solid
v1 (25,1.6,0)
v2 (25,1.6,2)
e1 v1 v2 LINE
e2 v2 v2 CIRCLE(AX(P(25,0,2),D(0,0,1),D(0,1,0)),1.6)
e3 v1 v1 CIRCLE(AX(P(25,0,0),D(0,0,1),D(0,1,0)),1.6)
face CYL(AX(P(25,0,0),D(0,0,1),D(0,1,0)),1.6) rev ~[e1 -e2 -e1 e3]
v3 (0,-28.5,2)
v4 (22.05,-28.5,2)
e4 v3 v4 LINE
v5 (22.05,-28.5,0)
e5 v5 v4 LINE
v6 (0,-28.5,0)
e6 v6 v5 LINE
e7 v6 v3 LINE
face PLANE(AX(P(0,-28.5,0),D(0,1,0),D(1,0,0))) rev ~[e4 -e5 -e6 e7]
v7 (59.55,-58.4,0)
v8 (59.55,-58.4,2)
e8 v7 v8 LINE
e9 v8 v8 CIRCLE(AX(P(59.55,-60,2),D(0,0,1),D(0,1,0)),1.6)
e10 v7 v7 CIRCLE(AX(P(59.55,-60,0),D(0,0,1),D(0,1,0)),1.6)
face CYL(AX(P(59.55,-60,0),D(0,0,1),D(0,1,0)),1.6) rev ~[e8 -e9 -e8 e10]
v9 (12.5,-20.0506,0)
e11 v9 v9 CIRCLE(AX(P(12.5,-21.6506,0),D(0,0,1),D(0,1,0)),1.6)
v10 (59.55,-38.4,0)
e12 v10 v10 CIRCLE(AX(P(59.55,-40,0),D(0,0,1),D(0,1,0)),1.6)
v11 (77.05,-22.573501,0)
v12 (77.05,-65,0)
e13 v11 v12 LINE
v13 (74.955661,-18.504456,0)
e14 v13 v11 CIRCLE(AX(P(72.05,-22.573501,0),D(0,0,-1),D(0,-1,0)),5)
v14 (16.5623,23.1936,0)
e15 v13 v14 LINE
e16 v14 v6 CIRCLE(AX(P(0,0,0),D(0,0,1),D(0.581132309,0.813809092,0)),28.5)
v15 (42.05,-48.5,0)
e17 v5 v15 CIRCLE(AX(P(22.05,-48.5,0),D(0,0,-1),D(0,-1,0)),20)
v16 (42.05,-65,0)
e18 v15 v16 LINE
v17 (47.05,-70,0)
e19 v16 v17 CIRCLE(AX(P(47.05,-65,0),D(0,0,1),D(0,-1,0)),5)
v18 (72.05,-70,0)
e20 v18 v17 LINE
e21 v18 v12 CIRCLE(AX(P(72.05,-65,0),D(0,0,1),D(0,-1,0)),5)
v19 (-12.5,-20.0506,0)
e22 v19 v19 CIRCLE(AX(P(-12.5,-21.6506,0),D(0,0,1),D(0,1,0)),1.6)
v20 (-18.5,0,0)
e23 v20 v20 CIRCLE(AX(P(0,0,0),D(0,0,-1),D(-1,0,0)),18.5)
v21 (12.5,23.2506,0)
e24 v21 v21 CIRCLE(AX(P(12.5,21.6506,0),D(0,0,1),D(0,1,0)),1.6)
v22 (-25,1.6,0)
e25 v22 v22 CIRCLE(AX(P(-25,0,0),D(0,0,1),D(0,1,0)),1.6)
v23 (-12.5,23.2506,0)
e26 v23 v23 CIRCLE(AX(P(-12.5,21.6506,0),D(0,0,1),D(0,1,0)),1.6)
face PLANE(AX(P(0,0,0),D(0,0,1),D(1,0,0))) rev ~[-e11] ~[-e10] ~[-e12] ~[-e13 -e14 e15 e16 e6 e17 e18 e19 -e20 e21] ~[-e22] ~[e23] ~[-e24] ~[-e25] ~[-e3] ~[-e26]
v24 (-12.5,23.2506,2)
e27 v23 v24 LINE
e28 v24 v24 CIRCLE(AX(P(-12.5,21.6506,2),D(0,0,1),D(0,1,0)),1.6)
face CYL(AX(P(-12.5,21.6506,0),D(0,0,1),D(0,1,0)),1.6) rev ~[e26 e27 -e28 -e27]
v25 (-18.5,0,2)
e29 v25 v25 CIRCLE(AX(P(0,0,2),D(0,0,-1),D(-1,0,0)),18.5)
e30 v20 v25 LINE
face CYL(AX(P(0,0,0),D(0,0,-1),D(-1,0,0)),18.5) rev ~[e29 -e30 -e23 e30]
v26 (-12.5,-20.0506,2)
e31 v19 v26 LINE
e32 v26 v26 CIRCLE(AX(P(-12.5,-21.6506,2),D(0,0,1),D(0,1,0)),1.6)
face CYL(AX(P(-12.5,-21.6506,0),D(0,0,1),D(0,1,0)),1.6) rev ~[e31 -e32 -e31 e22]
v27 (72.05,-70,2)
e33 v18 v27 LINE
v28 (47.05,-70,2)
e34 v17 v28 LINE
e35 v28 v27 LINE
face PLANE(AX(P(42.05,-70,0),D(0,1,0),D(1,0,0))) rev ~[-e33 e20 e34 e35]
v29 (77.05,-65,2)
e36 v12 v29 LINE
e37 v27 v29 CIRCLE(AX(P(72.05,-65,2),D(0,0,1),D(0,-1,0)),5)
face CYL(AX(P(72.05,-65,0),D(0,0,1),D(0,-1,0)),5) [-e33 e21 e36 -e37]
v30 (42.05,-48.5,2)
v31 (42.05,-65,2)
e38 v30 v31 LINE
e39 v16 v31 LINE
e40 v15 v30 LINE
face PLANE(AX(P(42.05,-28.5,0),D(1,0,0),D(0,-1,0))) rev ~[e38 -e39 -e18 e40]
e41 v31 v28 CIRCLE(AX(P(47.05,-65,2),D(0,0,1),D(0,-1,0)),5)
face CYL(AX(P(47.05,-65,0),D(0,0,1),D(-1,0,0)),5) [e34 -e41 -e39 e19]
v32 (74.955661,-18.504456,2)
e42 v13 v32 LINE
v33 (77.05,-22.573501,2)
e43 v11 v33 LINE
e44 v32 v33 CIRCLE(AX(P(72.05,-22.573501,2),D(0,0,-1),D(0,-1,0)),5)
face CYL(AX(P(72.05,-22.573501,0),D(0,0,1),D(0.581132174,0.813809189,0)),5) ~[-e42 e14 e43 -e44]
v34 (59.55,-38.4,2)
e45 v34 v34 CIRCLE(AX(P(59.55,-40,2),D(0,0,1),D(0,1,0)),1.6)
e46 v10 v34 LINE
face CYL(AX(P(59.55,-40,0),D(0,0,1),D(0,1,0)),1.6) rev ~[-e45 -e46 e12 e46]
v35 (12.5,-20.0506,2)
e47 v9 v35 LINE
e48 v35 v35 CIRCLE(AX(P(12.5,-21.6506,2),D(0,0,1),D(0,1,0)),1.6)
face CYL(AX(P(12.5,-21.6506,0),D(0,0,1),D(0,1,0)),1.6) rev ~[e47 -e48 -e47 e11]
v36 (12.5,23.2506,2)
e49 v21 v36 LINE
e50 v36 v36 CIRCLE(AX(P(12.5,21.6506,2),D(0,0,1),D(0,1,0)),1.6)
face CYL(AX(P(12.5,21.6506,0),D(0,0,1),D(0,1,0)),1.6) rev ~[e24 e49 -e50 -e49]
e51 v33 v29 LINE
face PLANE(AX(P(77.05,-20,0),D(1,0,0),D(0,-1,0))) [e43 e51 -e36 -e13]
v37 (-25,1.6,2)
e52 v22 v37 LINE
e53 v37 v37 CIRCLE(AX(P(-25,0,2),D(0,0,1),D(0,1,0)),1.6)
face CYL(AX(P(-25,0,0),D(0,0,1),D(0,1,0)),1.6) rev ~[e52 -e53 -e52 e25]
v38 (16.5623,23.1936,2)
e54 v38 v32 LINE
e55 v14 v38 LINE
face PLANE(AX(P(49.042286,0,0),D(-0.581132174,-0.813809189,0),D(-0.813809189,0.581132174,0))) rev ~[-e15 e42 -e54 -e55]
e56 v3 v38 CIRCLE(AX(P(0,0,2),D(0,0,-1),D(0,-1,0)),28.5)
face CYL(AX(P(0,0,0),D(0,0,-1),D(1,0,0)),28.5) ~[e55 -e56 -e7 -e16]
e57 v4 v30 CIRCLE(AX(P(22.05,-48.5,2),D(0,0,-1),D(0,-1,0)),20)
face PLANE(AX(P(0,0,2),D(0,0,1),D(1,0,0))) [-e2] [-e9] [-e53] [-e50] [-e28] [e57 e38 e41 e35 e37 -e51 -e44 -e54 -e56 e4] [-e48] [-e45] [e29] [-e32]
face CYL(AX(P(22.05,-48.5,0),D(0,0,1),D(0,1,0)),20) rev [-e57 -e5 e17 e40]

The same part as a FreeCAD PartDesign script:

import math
import FreeCAD as App
import Part
import Sketcher
Q = App.Units.Quantity


def edges_at(feature, points):
    """Names of the edges that pass closest to the given points."""
    edges = feature.Shape.Edges
    near = lambda p: min(range(len(edges)), key=lambda i: edges[i].distToShape(Part.Vertex(*p))[0])
    return sorted({f"Edge{near(p) + 1}" for p in points})

doc = App.newDocument("Part")
body = doc.addObject("PartDesign::Body", "Body")

sketch1 = body.newObject("Sketcher::SketchObject", "Sketch")
sketch1.AttachmentSupport = (doc.getObject("XY_Plane"), [""])
sketch1.MapMode = "FlatFace"
sketch1.addGeometry([
    Part.ArcOfCircle(Part.Circle(App.Vector(0, 0, 0), App.Vector(0, 0, 1), 28.5), math.radians(54.469777), math.radians(231.420787)),
    Part.LineSegment(App.Vector(-17.7725, -22.2798, 0), App.Vector(42.05, -70, 0)),
    Part.LineSegment(App.Vector(42.05, -70, 0), App.Vector(77.05, -70, 0)),
    Part.LineSegment(App.Vector(77.05, -70, 0), App.Vector(77.05, -20, 0)),
    Part.LineSegment(App.Vector(77.05, -20, 0), App.Vector(16.5623, 23.1936, 0)),
], False)
sketch1.addConstraint([
    Sketcher.Constraint("Tangent", 0, 2, 1, 1),
    Sketcher.Constraint("Coincident", 1, 2, 2, 1),
    Sketcher.Constraint("Coincident", 2, 2, 3, 1),
    Sketcher.Constraint("Coincident", 3, 2, 4, 1),
    Sketcher.Constraint("Tangent", 4, 2, 0, 1),
    Sketcher.Constraint("Horizontal", 2),
    Sketcher.Constraint("Vertical", 3),
    Sketcher.Constraint("Coincident", 0, 3, -1, 1),
    Sketcher.Constraint("Radius", 0, 28.5),
    Sketcher.Constraint("DistanceY", 3, 1, 3, 2, 50.0),
    Sketcher.Constraint("DistanceY", 1, 2, -1, 1, 70.0),
    Sketcher.Constraint("DistanceX", 2, 1, 2, 2, 35.0),
    Sketcher.Constraint("Angle", 1, Q("-38.5792 deg")),
])
pad1 = body.newObject("PartDesign::Pad", "Pad")
pad1.Profile = sketch1
pad1.Length = 2

sketch2 = body.newObject("Sketcher::SketchObject", "Sketch001")
sketch2.AttachmentSupport = (doc.getObject("XY_Plane"), [""])
sketch2.MapMode = "FlatFace"
sketch2.addGeometry(Part.Circle(App.Vector(0, 0, 0), App.Vector(0, 0, 1), 18.5), False)
sketch2.addConstraint([
    Sketcher.Constraint("Coincident", 0, 3, -1, 1),
    Sketcher.Constraint("Diameter", 0, 37.0),
])
pocket1 = body.newObject("PartDesign::Pocket", "Pocket")
pocket1.Profile = sketch2
pocket1.Length = 2
pocket1.Reversed = True

sketch3 = body.newObject("Sketcher::SketchObject", "Sketch002")
sketch3.AttachmentSupport = (doc.getObject("XY_Plane"), [""])
sketch3.MapMode = "FlatFace"
sketch3.addGeometry([
    Part.Circle(App.Vector(-12.5, 21.6506, 0), App.Vector(0, 0, 1), 1.6),
    Part.Circle(App.Vector(12.5, 21.6506, 0), App.Vector(0, 0, 1), 1.6),
    Part.Circle(App.Vector(25, 0, 0), App.Vector(0, 0, 1), 1.6),
    Part.Circle(App.Vector(12.5, -21.6506, 0), App.Vector(0, 0, 1), 1.6),
    Part.Circle(App.Vector(-12.5, -21.6506, 0), App.Vector(0, 0, 1), 1.6),
    Part.Circle(App.Vector(-25, 0, 0), App.Vector(0, 0, 1), 1.6),
], False)
sketch3.addConstraint([
    Sketcher.Constraint("Equal", 0, 1),
    Sketcher.Constraint("Equal", 1, 2),
    Sketcher.Constraint("Equal", 2, 3),
    Sketcher.Constraint("Equal", 3, 4),
    Sketcher.Constraint("Equal", 4, 5),
    Sketcher.Constraint("Symmetric", 0, 3, 3, 3, -1, 1),
    Sketcher.Constraint("Symmetric", 1, 3, 4, 3, -1, 1),
    Sketcher.Constraint("Symmetric", 2, 3, 5, 3, -1, 1),
    Sketcher.Constraint("Symmetric", 0, 3, 1, 3, -2),
    Sketcher.Constraint("PointOnObject", 2, 3, -1),
    Sketcher.Constraint("Diameter", 0, 3.2),
    Sketcher.Constraint("DistanceX", -1, 1, 2, 3, 25.0),
    Sketcher.Constraint("DistanceX", 0, 3, 1, 3, 25.0),
    Sketcher.Constraint("DistanceY", -1, 1, 0, 3, 21.6506),
])
doc.recompute()
hole = body.newObject("PartDesign::Hole", "Hole")
hole.Profile = sketch3
hole.ThreadType = "None"
hole.Diameter = 3.2
hole.DepthType = "ThroughAll"
hole.Reversed = True

sketch4 = body.newObject("Sketcher::SketchObject", "Sketch003")
sketch4.AttachmentSupport = (doc.getObject("XY_Plane"), [""])
sketch4.MapMode = "FlatFace"
sketch4.addGeometry([
    Part.Circle(App.Vector(59.55, -40, 0), App.Vector(0, 0, 1), 1.6),
    Part.Circle(App.Vector(59.55, -60, 0), App.Vector(0, 0, 1), 1.6),
], False)
sketch4.addConstraint([
    Sketcher.Constraint("Equal", 0, 1),
    Sketcher.Constraint("Vertical", 0, 3, 1, 3),
    Sketcher.Constraint("Diameter", 0, 3.2),
    Sketcher.Constraint("DistanceY", 0, 3, -1, 1, 40.0),
    Sketcher.Constraint("DistanceY", 1, 3, -1, 1, 60.0),
    Sketcher.Constraint("DistanceX", -1, 1, 0, 3, 59.55),
])
doc.recompute()
hole2 = body.newObject("PartDesign::Hole", "Hole001")
hole2.Profile = sketch4
hole2.ThreadType = "None"
hole2.Diameter = 3.2
hole2.DepthType = "ThroughAll"
hole2.Reversed = True

sketch5 = body.newObject("Sketcher::SketchObject", "Sketch004")
sketch5.AttachmentSupport = (doc.getObject("XY_Plane"), [""])
sketch5.MapMode = "FlatFace"
sketch5.addGeometry([
    Part.LineSegment(App.Vector(42.05, -70, 0), App.Vector(-17.7725, -22.2798, 0)),
    Part.ArcOfCircle(Part.Circle(App.Vector(0, 0, 0), App.Vector(0, 0, 1), 28.5), math.radians(-128.579213), math.radians(-90)),
    Part.LineSegment(App.Vector(0, -28.5, 0), App.Vector(42.05, -28.5, 0)),
    Part.LineSegment(App.Vector(42.05, -28.5, 0), App.Vector(42.05, -70, 0)),
], False)
sketch5.addConstraint([
    Sketcher.Constraint("Tangent", 0, 2, 1, 1),
    Sketcher.Constraint("Tangent", 1, 2, 2, 1),
    Sketcher.Constraint("Coincident", 2, 2, 3, 1),
    Sketcher.Constraint("Coincident", 3, 2, 0, 1),
    Sketcher.Constraint("Horizontal", 2),
    Sketcher.Constraint("Vertical", 3),
    Sketcher.Constraint("Coincident", 1, 3, -1, 1),
    Sketcher.Constraint("Radius", 1, 28.5),
    Sketcher.Constraint("DistanceY", 3, 2, 3, 1, 41.5),
    Sketcher.Constraint("DistanceX", 2, 1, 2, 2, 42.05),
])
pocket2 = body.newObject("PartDesign::Pocket", "Pocket001")
pocket2.Profile = sketch5
pocket2.Length = 2
pocket2.Reversed = True
doc.recompute()

fillet = body.newObject("PartDesign::Fillet", "Fillet")
fillet.Base = (pocket2, edges_at(pocket2, [(42.05, -28.5, 1)]))
fillet.Radius = 20
doc.recompute()

fillet2 = body.newObject("PartDesign::Fillet", "Fillet001")
fillet2.Base = (fillet, edges_at(fillet, [(42.05, -70, 1), (77.05, -70, 1), (77.05, -20, 1)]))
fillet2.Radius = 5

doc.recompute()
